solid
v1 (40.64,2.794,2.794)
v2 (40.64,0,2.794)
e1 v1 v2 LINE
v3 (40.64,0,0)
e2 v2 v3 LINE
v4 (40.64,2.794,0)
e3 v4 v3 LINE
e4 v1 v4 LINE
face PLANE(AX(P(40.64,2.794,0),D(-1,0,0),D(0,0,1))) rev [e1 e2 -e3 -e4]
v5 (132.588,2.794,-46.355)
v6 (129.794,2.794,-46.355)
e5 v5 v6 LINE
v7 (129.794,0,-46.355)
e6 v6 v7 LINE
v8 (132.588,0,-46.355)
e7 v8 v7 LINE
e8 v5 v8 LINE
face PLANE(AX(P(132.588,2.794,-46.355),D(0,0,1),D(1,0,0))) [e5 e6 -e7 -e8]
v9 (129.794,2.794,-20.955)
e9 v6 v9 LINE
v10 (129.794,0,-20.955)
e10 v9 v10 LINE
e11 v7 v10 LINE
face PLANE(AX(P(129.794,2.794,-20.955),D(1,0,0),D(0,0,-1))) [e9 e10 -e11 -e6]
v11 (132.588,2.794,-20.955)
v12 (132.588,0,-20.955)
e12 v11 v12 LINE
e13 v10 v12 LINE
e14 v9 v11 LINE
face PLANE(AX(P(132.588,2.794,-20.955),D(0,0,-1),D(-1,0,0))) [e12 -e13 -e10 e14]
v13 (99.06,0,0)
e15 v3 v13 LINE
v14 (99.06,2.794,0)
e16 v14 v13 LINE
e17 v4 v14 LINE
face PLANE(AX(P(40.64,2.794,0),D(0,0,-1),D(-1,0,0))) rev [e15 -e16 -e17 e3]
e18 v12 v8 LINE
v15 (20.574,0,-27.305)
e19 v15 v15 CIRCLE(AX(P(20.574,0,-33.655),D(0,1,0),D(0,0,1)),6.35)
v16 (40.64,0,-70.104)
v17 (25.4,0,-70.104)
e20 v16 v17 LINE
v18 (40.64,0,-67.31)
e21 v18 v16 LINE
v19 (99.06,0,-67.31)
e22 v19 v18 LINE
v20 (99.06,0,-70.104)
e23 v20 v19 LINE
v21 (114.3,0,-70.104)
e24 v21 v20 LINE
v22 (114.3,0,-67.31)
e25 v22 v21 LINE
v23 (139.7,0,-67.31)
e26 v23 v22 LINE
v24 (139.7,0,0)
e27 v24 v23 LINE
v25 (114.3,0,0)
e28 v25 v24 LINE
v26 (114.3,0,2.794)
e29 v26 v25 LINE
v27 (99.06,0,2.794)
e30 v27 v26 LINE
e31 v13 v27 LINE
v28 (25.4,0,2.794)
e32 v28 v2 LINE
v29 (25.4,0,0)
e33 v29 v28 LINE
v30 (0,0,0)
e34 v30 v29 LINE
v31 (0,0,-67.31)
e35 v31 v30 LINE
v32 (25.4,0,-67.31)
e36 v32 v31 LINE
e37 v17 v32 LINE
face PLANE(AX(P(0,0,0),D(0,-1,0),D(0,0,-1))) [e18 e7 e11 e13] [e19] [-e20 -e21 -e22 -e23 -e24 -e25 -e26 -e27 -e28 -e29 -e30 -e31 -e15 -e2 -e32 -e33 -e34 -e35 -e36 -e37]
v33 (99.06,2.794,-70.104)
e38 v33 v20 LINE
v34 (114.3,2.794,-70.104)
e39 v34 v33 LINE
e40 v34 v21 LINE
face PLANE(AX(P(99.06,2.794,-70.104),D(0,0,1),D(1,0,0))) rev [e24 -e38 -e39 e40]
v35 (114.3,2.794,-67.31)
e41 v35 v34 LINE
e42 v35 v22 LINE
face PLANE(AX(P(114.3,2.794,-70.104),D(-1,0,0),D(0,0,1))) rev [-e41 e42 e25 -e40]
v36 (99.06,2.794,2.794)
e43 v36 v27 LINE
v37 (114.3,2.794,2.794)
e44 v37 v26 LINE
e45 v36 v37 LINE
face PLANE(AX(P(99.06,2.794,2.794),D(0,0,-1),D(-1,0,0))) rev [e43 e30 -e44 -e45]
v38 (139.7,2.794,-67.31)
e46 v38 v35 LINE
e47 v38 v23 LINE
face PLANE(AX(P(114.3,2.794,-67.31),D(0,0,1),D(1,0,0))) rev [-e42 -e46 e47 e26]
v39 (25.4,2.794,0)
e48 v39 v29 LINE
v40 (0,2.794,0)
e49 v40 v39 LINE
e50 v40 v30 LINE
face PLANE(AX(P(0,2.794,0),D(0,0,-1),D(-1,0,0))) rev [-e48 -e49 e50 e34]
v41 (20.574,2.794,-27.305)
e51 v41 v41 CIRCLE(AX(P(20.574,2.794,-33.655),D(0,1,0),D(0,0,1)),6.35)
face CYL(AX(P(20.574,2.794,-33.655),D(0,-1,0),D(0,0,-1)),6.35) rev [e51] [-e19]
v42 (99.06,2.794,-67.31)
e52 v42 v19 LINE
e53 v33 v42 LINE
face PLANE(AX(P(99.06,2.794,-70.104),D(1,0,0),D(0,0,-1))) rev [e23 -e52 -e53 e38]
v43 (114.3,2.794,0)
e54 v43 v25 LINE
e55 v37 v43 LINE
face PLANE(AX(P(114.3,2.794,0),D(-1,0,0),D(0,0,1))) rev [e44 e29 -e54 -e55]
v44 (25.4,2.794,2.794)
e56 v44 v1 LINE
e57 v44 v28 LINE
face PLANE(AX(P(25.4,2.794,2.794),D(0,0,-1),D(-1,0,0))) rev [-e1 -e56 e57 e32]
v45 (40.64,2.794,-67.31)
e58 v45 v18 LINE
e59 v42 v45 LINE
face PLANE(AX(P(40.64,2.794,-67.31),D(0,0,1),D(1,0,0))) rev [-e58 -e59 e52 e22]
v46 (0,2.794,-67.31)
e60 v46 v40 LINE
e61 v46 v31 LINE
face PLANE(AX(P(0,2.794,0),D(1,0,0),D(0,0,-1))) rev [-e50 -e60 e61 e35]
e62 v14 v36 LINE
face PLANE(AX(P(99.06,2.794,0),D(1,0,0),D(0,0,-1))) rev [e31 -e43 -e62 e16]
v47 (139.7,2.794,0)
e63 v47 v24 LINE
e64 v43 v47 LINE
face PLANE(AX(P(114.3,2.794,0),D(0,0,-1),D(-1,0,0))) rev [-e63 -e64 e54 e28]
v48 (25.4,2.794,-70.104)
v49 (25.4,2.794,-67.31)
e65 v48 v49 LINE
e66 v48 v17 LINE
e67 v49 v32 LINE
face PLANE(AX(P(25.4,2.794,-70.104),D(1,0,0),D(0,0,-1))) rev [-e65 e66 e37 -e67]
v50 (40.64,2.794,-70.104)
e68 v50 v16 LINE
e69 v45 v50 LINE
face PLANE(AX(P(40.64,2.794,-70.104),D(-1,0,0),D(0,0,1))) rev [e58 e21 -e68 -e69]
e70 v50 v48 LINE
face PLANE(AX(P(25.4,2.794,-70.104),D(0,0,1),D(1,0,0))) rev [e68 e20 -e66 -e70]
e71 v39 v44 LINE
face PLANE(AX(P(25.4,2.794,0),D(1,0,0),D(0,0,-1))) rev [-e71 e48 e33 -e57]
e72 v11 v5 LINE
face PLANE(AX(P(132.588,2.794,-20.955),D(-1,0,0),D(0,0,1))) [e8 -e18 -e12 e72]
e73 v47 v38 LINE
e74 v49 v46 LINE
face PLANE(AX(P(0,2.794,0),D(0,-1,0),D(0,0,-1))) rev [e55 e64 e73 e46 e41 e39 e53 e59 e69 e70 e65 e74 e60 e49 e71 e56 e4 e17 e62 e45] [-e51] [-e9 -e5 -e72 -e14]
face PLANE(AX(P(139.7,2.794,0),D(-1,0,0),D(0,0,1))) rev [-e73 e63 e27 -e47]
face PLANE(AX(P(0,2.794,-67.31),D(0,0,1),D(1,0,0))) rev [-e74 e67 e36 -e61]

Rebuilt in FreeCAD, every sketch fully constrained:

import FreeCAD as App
import Part
import Sketcher
Q = App.Units.Quantity

doc = App.newDocument("Part")
body = doc.addObject("PartDesign::Body", "Body")

sketch1 = body.newObject("Sketcher::SketchObject", "Sketch")
sketch1.AttachmentSupport = (doc.getObject("XZ_Plane"), [""])
sketch1.MapMode = "FlatFace"
sketch1.addGeometry([
    Part.LineSegment(App.Vector(0, 0, 0), App.Vector(25.4, 0, 0)),
    Part.LineSegment(App.Vector(25.4, 0, 0), App.Vector(25.4, 2.8, 0)),
    Part.LineSegment(App.Vector(25.4, 2.8, 0), App.Vector(40.6, 2.8, 0)),
    Part.LineSegment(App.Vector(40.6, 2.8, 0), App.Vector(40.6, 0, 0)),
    Part.LineSegment(App.Vector(40.6, 0, 0), App.Vector(99.1, 0, 0)),
    Part.LineSegment(App.Vector(99.1, 0, 0), App.Vector(99.1, 2.8, 0)),
    Part.LineSegment(App.Vector(99.1, 2.8, 0), App.Vector(114.3, 2.8, 0)),
    Part.LineSegment(App.Vector(114.3, 2.8, 0), App.Vector(114.3, 0, 0)),
    Part.LineSegment(App.Vector(114.3, 0, 0), App.Vector(139.7, 0, 0)),
    Part.LineSegment(App.Vector(139.7, 0, 0), App.Vector(139.7, -67.3, 0)),
    Part.LineSegment(App.Vector(139.7, -67.3, 0), App.Vector(114.3, -67.3, 0)),
    Part.LineSegment(App.Vector(114.3, -67.3, 0), App.Vector(114.3, -70.1, 0)),
    Part.LineSegment(App.Vector(114.3, -70.1, 0), App.Vector(99.1, -70.1, 0)),
    Part.LineSegment(App.Vector(99.1, -70.1, 0), App.Vector(99.1, -67.3, 0)),
    Part.LineSegment(App.Vector(99.1, -67.3, 0), App.Vector(40.6, -67.3, 0)),
    Part.LineSegment(App.Vector(40.6, -67.3, 0), App.Vector(40.6, -70.1, 0)),
    Part.LineSegment(App.Vector(40.6, -70.1, 0), App.Vector(25.4, -70.1, 0)),
    Part.LineSegment(App.Vector(25.4, -70.1, 0), App.Vector(25.4, -67.3, 0)),
    Part.LineSegment(App.Vector(25.4, -67.3, 0), App.Vector(0, -67.3, 0)),
    Part.LineSegment(App.Vector(0, -67.3, 0), App.Vector(0, 0, 0)),
    Part.Circle(App.Vector(20.6, -33.7, 0), App.Vector(0, 0, 1), 6.3),
    Part.LineSegment(App.Vector(132.6, -21, 0), App.Vector(129.8, -21, 0)),
    Part.LineSegment(App.Vector(129.8, -21, 0), App.Vector(129.8, -46.4, 0)),
    Part.LineSegment(App.Vector(129.8, -46.4, 0), App.Vector(132.6, -46.4, 0)),
    Part.LineSegment(App.Vector(132.6, -46.4, 0), App.Vector(132.6, -21, 0)),
], False)
sketch1.addConstraint([
    Sketcher.Constraint("Coincident", 0, 2, 1, 1),
    Sketcher.Constraint("Coincident", 1, 2, 2, 1),
    Sketcher.Constraint("Coincident", 2, 2, 3, 1),
    Sketcher.Constraint("Coincident", 3, 2, 4, 1),
    Sketcher.Constraint("Coincident", 4, 2, 5, 1),
    Sketcher.Constraint("Coincident", 5, 2, 6, 1),
    Sketcher.Constraint("Coincident", 6, 2, 7, 1),
    Sketcher.Constraint("Coincident", 7, 2, 8, 1),
    Sketcher.Constraint("Coincident", 8, 2, 9, 1),
    Sketcher.Constraint("Coincident", 9, 2, 10, 1),
    Sketcher.Constraint("Coincident", 10, 2, 11, 1),
    Sketcher.Constraint("Coincident", 11, 2, 12, 1),
    Sketcher.Constraint("Coincident", 12, 2, 13, 1),
    Sketcher.Constraint("Coincident", 13, 2, 14, 1),
    Sketcher.Constraint("Coincident", 14, 2, 15, 1),
    Sketcher.Constraint("Coincident", 15, 2, 16, 1),
    Sketcher.Constraint("Coincident", 16, 2, 17, 1),
    Sketcher.Constraint("Coincident", 17, 2, 18, 1),
    Sketcher.Constraint("Coincident", 18, 2, 19, 1),
    Sketcher.Constraint("Coincident", 19, 2, 0, 1),
    Sketcher.Constraint("Coincident", 21, 2, 22, 1),
    Sketcher.Constraint("Coincident", 22, 2, 23, 1),
    Sketcher.Constraint("Coincident", 23, 2, 24, 1),
    Sketcher.Constraint("Coincident", 24, 2, 21, 1),
    Sketcher.Constraint("Horizontal", 0),
    Sketcher.Constraint("Vertical", 1),
    Sketcher.Constraint("Horizontal", 2),
    Sketcher.Constraint("Vertical", 3),
    Sketcher.Constraint("Horizontal", 4),
    Sketcher.Constraint("Vertical", 5),
    Sketcher.Constraint("Horizontal", 6),
    Sketcher.Constraint("Vertical", 7),
    Sketcher.Constraint("Horizontal", 8),
    Sketcher.Constraint("Vertical", 9),
    Sketcher.Constraint("Horizontal", 10),
    Sketcher.Constraint("Vertical", 11),
    Sketcher.Constraint("Horizontal", 12),
    Sketcher.Constraint("Vertical", 13),
    Sketcher.Constraint("Horizontal", 14),
    Sketcher.Constraint("Vertical", 15),
    Sketcher.Constraint("Horizontal", 16),
    Sketcher.Constraint("Vertical", 17),
    Sketcher.Constraint("Horizontal", 18),
    Sketcher.Constraint("Vertical", 19),
    Sketcher.Constraint("Horizontal", 21),
    Sketcher.Constraint("Vertical", 22),
    Sketcher.Constraint("Horizontal", 23),
    Sketcher.Constraint("Vertical", 24),
    Sketcher.Constraint("Coincident", 19, 2, -1, 1),
    Sketcher.Constraint("PointOnObject", 3, 2, -1),
    Sketcher.Constraint("PointOnObject", 7, 2, -1),
    Sketcher.Constraint("Horizontal", 2, 2, 5, 2),
    Sketcher.Constraint("Horizontal", 10, 2, 13, 2),
    Sketcher.Constraint("Horizontal", 12, 2, 15, 2),
    Sketcher.Constraint("Horizontal", 14, 2, 17, 2),
    Sketcher.Constraint("Vertical", 7, 2, 10, 2),
    Sketcher.Constraint("Vertical", 5, 2, 12, 2),
    Sketcher.Constraint("Vertical", 3, 2, 14, 2),
    Sketcher.Constraint("Vertical", 1, 2, 16, 2),
    Sketcher.Constraint("Equal", 2, 6),
    Sketcher.Constraint("Equal", 0, 8),
    Sketcher.Constraint("Equal", 23, 1),
    Sketcher.Constraint("Equal", 7, 11),
    Sketcher.Constraint("Equal", 18, 22),
    Sketcher.Constraint("Diameter", 20, Q("0.5 in")),
    Sketcher.Constraint("DistanceX", 0, 1, 0, 2, Q("1 in")),
    Sketcher.Constraint("DistanceX", 2, 1, 2, 2, Q("0.6 in")),
    Sketcher.Constraint("DistanceX", 4, 1, 4, 2, Q("2.3 in")),
    Sketcher.Constraint("DistanceX", 21, 2, 21, 1, Q("0.11 in")),
    Sketcher.Constraint("DistanceY", 9, 2, 9, 1, Q("2.65 in")),
    Sketcher.Constraint("DistanceX", -1, 1, 20, 3, Q("0.81 in")),
    Sketcher.Constraint("DistanceX", -1, 1, 21, 2, Q("5.11 in")),
    Sketcher.Constraint("DistanceY", 20, 3, -1, 1, Q("1.325 in")),
    Sketcher.Constraint("DistanceY", 21, 2, -1, 1, Q("0.825 in")),
])
pad1 = body.newObject("PartDesign::Pad", "Pad")
pad1.Profile = sketch1
pad1.Length = Q("0.11 in")
pad1.Reversed = True

doc.recompute()
